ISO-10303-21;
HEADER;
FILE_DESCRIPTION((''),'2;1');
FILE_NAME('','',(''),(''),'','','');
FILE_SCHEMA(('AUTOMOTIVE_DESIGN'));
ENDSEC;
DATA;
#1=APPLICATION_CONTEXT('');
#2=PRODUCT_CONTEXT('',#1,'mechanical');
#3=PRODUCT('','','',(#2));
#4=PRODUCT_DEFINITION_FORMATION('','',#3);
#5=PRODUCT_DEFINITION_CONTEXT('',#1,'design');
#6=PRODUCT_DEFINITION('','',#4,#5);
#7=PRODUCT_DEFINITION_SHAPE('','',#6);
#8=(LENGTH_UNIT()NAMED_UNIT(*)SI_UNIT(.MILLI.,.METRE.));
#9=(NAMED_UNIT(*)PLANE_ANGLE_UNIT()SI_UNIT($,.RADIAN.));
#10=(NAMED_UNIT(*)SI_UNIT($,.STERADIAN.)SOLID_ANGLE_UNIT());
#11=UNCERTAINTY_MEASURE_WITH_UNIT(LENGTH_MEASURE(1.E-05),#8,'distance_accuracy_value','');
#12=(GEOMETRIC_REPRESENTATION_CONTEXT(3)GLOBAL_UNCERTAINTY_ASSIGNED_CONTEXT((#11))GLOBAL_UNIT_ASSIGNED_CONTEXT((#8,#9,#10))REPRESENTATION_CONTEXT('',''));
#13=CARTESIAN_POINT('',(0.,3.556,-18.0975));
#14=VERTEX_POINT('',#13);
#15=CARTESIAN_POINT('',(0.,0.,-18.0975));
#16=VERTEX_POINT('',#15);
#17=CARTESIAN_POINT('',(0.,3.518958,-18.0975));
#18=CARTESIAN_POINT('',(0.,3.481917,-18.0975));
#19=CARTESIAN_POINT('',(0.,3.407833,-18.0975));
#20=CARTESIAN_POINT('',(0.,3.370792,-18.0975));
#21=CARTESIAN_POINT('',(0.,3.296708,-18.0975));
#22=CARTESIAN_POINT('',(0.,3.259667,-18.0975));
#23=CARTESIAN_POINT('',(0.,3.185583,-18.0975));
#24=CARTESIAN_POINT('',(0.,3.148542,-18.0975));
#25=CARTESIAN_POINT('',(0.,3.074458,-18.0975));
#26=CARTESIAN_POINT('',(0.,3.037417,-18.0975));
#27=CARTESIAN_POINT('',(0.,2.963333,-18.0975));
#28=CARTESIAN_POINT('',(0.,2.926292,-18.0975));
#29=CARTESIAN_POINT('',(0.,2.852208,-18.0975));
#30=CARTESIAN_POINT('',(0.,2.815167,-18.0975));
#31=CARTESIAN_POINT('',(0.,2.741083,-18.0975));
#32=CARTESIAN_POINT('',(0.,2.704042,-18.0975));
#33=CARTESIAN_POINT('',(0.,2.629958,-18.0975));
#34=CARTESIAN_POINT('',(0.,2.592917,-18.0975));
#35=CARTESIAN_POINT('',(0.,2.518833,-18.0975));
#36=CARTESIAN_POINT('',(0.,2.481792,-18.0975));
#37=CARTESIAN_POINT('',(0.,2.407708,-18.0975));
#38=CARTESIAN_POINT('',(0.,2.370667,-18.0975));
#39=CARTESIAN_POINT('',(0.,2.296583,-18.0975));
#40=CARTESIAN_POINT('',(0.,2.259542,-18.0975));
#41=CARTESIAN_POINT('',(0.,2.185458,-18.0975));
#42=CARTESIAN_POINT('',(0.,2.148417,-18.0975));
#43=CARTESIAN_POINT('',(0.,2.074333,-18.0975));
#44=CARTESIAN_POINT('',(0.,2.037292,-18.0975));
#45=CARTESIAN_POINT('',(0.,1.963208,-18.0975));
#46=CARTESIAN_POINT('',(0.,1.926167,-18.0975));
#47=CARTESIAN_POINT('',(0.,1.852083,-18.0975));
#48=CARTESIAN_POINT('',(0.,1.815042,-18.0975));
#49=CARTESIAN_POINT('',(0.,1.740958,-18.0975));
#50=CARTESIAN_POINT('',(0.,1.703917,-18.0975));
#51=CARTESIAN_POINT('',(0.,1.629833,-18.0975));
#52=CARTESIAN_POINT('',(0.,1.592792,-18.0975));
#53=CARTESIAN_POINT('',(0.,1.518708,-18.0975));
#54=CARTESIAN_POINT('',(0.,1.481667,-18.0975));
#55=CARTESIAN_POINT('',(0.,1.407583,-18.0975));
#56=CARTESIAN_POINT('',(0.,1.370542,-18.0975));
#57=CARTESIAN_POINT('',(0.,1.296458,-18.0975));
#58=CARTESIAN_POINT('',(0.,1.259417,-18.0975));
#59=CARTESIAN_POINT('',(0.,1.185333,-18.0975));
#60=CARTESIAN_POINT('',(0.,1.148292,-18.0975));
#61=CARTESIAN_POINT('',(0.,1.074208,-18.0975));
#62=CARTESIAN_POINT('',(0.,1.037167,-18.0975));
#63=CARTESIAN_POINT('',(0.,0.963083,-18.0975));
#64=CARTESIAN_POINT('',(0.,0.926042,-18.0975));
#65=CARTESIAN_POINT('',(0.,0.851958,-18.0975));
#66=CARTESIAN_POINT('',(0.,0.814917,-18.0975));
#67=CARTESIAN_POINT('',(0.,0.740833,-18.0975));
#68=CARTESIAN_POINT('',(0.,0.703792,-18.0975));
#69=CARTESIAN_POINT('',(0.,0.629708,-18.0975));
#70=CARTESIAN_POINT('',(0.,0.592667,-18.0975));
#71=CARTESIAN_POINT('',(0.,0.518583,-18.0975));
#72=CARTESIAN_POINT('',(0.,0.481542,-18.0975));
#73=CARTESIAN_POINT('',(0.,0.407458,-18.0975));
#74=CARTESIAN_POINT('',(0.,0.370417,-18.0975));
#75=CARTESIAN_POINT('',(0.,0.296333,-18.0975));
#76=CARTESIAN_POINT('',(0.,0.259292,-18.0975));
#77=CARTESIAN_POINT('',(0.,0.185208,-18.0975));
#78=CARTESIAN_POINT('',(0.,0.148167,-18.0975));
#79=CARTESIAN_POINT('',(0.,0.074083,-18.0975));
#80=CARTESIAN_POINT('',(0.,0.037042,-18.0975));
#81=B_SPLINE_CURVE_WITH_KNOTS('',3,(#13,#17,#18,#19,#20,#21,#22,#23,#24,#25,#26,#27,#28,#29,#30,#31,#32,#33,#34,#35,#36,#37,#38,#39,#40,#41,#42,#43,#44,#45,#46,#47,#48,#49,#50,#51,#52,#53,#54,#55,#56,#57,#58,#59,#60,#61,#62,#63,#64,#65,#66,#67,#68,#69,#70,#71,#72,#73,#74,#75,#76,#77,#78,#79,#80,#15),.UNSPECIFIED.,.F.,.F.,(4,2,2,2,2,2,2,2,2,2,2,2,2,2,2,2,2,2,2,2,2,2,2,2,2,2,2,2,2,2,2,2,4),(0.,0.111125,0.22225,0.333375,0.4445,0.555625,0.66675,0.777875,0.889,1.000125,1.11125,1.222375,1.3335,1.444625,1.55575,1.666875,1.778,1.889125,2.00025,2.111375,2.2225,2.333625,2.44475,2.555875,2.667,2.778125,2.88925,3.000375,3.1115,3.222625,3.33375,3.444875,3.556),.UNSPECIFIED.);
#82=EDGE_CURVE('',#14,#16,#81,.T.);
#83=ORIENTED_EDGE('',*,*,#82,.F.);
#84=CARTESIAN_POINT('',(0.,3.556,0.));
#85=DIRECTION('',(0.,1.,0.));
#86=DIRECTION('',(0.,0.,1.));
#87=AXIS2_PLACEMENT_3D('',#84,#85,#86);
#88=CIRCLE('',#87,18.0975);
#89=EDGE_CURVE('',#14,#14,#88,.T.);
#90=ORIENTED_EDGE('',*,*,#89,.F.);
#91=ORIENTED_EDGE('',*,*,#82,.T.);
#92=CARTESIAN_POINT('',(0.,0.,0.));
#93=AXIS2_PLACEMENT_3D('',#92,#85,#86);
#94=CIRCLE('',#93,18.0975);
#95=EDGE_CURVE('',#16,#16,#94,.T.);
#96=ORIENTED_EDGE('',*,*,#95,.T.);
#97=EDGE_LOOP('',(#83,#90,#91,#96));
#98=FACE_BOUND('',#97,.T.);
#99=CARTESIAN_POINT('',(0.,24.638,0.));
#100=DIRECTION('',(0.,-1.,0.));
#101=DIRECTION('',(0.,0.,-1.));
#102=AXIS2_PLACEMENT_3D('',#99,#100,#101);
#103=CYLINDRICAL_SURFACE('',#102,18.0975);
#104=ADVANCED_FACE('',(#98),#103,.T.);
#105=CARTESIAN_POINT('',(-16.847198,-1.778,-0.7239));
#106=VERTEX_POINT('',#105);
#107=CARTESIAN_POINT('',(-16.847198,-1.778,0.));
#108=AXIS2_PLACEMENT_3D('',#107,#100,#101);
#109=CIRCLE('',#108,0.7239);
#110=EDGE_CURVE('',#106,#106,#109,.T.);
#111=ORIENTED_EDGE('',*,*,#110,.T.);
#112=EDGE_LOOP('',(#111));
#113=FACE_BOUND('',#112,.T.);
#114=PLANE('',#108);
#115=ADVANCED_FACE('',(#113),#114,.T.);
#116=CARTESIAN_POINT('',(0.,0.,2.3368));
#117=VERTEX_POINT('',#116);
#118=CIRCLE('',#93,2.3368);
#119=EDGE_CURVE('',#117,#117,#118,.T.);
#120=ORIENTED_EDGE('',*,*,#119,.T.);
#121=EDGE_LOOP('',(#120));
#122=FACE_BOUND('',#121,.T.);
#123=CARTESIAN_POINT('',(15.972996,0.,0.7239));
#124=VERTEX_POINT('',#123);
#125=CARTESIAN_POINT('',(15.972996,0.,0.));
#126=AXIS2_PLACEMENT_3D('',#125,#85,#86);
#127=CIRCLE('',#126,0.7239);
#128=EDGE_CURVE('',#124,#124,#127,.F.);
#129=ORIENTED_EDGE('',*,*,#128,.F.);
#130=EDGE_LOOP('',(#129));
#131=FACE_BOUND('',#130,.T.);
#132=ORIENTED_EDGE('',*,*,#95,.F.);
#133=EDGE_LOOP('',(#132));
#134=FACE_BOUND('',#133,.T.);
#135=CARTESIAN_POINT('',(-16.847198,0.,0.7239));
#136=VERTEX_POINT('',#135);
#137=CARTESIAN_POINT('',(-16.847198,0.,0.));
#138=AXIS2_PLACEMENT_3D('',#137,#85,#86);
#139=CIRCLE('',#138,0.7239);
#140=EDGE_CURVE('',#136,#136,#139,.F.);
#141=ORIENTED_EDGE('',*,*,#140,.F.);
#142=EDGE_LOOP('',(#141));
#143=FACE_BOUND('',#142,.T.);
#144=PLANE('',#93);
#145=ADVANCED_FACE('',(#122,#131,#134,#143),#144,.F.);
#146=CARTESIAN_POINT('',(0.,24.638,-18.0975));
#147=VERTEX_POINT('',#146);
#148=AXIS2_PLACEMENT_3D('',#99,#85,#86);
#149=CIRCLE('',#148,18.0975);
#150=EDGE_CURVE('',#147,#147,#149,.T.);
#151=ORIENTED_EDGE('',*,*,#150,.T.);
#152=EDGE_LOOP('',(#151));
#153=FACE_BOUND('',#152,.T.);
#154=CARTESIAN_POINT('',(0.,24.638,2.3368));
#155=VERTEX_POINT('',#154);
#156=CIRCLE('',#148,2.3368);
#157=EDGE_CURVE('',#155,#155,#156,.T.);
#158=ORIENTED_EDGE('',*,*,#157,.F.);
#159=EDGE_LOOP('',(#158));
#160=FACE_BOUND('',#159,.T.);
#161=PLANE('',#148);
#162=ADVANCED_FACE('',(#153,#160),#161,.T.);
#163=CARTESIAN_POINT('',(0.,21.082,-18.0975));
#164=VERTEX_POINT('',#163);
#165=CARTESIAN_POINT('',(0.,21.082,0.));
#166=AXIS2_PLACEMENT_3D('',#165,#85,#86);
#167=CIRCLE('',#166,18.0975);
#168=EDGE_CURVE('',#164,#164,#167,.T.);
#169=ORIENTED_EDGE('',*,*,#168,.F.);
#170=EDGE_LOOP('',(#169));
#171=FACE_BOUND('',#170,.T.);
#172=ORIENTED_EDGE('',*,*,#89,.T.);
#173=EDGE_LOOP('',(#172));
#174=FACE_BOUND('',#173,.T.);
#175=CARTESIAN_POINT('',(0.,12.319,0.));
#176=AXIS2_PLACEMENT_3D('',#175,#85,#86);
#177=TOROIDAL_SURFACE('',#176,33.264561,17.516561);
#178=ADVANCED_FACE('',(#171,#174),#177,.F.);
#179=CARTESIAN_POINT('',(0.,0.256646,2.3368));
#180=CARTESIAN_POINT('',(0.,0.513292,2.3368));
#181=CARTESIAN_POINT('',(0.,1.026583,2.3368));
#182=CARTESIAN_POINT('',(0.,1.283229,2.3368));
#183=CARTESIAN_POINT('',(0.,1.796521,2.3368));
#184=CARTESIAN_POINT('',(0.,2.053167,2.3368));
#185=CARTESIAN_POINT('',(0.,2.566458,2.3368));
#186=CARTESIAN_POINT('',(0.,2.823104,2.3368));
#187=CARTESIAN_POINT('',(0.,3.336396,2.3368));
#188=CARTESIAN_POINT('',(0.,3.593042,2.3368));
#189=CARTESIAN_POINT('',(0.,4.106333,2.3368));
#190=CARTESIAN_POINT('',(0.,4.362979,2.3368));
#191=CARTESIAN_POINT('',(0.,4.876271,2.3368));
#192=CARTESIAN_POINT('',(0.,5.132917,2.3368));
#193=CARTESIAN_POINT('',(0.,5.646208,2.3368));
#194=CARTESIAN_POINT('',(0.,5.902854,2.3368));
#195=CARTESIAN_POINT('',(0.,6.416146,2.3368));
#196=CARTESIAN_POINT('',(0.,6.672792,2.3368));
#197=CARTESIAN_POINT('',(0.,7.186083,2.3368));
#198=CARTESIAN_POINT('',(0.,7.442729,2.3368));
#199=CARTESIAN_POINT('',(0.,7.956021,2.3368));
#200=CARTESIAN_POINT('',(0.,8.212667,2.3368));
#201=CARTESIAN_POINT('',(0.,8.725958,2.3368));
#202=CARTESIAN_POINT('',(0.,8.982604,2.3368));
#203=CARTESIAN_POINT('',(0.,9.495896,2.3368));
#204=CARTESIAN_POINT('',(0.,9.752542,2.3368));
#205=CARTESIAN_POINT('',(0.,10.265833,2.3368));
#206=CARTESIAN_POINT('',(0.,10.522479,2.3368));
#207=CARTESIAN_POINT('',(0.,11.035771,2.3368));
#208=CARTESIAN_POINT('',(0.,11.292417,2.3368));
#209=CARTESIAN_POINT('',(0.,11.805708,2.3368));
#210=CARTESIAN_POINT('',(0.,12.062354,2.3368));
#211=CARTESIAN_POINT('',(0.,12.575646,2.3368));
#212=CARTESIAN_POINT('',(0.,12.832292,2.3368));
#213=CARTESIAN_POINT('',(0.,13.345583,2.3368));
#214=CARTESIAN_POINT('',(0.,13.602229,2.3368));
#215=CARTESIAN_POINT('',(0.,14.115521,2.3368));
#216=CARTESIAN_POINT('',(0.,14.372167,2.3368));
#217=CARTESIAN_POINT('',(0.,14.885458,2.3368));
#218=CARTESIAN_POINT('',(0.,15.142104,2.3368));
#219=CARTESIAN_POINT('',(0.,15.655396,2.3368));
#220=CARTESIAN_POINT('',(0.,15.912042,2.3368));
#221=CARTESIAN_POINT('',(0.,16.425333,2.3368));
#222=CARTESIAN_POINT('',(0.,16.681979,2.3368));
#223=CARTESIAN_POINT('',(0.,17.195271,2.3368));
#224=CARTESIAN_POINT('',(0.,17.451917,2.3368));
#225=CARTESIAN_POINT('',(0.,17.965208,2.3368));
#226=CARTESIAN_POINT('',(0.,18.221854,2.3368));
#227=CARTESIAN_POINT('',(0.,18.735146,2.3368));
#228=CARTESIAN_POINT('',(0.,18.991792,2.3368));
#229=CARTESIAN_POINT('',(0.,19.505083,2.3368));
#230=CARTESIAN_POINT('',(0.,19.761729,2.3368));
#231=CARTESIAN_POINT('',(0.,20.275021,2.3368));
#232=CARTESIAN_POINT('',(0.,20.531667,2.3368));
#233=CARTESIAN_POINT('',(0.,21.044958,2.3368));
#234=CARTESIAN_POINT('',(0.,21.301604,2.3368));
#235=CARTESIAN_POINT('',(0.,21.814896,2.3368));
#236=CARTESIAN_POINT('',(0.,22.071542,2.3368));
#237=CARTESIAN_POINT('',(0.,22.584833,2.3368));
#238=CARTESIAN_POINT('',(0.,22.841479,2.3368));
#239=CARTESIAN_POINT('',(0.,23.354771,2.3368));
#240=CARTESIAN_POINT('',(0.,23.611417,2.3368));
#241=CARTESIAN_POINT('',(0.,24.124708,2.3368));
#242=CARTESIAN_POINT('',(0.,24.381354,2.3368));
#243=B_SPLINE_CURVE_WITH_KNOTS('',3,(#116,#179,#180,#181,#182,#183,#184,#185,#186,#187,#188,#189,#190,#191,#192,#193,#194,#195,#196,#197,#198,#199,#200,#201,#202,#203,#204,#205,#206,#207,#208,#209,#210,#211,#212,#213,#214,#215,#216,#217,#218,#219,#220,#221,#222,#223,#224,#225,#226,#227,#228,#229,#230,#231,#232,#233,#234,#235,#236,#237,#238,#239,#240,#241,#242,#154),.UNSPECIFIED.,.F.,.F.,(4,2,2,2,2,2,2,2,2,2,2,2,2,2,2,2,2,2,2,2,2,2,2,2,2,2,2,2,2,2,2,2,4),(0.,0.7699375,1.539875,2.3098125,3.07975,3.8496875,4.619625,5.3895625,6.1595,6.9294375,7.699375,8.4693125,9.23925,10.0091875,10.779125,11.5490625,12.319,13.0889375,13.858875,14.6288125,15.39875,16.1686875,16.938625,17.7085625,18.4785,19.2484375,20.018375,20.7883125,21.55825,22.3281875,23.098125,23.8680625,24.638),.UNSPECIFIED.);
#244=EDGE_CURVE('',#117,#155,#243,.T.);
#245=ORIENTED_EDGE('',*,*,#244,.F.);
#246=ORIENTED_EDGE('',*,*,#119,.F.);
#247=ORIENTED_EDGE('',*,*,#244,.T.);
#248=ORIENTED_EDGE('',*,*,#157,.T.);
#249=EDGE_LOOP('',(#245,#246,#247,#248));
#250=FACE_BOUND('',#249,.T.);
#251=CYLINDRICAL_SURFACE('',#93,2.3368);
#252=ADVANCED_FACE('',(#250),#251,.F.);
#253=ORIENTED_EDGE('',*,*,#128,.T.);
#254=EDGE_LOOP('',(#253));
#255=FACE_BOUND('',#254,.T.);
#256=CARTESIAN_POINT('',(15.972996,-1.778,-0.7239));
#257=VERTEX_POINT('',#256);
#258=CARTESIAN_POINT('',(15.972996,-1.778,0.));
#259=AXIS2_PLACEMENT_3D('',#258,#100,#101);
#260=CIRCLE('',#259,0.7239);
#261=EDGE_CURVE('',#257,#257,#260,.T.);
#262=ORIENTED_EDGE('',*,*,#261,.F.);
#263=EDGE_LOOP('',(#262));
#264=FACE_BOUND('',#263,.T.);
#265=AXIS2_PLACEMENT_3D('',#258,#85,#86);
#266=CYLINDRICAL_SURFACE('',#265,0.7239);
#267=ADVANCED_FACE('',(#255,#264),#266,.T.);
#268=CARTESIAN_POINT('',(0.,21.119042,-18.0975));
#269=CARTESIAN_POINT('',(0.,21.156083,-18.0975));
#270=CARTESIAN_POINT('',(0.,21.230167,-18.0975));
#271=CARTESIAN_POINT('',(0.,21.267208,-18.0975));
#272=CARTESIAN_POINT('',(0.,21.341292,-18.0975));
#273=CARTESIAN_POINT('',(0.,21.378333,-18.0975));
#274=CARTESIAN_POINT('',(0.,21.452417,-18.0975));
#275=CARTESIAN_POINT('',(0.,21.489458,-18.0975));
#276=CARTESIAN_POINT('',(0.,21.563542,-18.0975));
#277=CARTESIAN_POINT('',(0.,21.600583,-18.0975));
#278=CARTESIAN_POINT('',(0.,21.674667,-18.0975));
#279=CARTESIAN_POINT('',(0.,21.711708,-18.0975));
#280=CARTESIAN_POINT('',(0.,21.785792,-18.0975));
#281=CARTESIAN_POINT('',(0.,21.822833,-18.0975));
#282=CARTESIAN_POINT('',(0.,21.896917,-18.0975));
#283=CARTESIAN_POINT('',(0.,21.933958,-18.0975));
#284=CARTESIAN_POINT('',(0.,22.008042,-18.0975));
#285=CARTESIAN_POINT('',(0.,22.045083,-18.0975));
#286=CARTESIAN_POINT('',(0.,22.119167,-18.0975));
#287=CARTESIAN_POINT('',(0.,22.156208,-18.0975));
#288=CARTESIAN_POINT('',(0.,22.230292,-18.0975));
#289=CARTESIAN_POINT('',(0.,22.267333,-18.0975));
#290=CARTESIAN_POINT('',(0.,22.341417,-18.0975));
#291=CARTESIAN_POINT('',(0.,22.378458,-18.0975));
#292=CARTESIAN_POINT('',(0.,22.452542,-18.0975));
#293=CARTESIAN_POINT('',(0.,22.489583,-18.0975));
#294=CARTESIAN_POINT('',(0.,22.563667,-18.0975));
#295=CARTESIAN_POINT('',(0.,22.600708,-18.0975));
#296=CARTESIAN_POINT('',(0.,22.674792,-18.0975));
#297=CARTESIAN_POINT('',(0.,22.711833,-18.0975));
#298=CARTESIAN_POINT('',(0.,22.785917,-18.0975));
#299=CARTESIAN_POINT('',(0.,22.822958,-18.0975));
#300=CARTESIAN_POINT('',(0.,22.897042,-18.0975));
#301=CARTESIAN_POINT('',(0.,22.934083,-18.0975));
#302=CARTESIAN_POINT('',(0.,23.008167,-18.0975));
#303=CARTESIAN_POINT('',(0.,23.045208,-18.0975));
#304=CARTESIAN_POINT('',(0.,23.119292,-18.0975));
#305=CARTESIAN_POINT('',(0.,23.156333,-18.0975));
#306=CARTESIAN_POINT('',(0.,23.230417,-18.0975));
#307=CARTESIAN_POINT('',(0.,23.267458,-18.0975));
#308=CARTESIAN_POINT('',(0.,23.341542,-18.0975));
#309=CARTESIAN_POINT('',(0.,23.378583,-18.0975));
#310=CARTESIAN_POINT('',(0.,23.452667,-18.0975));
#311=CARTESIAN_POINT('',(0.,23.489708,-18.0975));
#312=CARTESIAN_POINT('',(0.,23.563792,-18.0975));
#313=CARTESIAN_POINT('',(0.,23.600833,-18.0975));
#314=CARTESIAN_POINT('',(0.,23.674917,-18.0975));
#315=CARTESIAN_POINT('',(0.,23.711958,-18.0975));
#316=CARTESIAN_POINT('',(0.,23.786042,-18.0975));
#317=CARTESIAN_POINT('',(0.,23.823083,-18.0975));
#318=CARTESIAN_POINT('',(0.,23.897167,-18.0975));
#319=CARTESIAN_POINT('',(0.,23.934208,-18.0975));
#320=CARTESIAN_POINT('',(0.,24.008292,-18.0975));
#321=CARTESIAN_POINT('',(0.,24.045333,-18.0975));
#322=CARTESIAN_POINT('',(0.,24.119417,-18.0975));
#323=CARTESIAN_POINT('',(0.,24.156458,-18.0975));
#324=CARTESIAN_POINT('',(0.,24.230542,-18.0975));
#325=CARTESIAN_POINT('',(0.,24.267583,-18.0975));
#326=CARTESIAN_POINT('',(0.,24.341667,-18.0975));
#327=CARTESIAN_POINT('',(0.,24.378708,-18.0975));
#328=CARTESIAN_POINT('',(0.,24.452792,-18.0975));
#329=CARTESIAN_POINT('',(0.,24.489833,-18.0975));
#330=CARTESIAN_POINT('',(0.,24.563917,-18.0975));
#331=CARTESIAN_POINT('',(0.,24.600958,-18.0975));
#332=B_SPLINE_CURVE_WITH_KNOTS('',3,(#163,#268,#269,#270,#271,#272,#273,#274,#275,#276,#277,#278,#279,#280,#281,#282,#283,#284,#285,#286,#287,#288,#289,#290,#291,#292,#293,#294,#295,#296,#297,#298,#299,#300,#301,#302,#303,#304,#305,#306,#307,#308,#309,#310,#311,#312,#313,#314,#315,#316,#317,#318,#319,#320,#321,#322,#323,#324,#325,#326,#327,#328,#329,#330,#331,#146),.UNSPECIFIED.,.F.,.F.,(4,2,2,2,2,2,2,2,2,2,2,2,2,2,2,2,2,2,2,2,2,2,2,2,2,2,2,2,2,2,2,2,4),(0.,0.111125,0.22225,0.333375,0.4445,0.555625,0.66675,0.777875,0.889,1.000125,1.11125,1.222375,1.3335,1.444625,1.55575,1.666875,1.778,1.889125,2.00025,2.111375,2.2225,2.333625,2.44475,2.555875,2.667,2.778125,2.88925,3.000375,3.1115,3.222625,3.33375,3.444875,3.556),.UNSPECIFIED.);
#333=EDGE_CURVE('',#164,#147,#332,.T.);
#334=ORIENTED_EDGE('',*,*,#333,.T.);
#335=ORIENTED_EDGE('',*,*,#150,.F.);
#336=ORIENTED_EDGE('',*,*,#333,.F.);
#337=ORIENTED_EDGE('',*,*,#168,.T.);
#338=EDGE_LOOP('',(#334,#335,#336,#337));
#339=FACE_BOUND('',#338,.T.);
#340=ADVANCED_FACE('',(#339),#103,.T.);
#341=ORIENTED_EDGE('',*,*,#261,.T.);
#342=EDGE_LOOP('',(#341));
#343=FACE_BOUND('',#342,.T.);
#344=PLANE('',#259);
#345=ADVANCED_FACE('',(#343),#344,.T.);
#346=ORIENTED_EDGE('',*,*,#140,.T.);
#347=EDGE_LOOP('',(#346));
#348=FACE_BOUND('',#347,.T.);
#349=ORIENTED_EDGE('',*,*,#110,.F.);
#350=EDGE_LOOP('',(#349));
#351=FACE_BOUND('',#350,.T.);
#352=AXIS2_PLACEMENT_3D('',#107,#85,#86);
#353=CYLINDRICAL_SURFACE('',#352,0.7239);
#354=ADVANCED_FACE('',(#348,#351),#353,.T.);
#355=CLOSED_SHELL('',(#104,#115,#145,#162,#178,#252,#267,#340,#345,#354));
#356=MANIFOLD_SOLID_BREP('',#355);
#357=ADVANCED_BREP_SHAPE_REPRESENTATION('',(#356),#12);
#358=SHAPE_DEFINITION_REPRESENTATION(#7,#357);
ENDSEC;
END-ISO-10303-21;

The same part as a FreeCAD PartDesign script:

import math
import FreeCAD as App
import Part
import Sketcher
from FreeCAD import Vector
Q = App.Units.Quantity

doc = App.newDocument("Part")
body = doc.addObject("PartDesign::Body", "Body")

# Sketch on XZ plane
sketch1 = body.newObject("Sketcher::SketchObject", "Sketch")
sketch1.AttachmentSupport = (doc.getObject("XZ_Plane"), [""])
sketch1.MapMode = "FlatFace"
sketch1.addGeometry(Part.Circle(Vector(0, 0, 0), Vector(0, 0, 1), 18.0975), False)
sketch1.addConstraint([
    Sketcher.Constraint("Coincident", 0, 3, -1, 1),
    Sketcher.Constraint("Diameter", 0, Q("1.425 in")),
])
pad1 = body.newObject("PartDesign::Pad", "Pad")
pad1.Profile = sketch1
pad1.Length = Q("0.97 in")
pad1.Reversed = True

# Sketch on XZ plane
sketch2 = body.newObject("Sketcher::SketchObject", "Sketch001")
sketch2.AttachmentSupport = (doc.getObject("XZ_Plane"), [""])
sketch2.MapMode = "FlatFace"
sketch2.AttachmentOffset = App.Placement(Vector(0, 0, -0.97 * 25.4), App.Rotation())
sketch2.addGeometry(Part.Circle(Vector(0, 0, 0), Vector(0, 0, 1), 2.3368), False)
sketch2.addConstraint([
    Sketcher.Constraint("Coincident", 0, 3, -1, 1),
    Sketcher.Constraint("Diameter", 0, Q("0.184 in")),
])
pocket1 = body.newObject("PartDesign::Pocket", "Pocket")
pocket1.Profile = sketch2
pocket1.Type = "ThroughAll"
pocket1.Reversed = True

# Sketch on XZ plane
sketch3 = body.newObject("Sketcher::SketchObject", "Sketch002")
sketch3.AttachmentSupport = (doc.getObject("XZ_Plane"), [""])
sketch3.MapMode = "FlatFace"
sketch3.addGeometry([
    Part.Circle(Vector(15.972996, 0, 0), Vector(0, 0, 1), 0.7239),
    Part.Circle(Vector(-16.847198, 0, 0), Vector(0, 0, 1), 0.7239),
], False)
sketch3.addConstraint([
    Sketcher.Constraint("Equal", 0, 1),
    Sketcher.Constraint("PointOnObject", 0, 3, -1),
    Sketcher.Constraint("PointOnObject", 1, 3, -1),
    Sketcher.Constraint("Diameter", 0, Q("0.057 in")),
    Sketcher.Constraint("DistanceX", -1, 1, 0, 3, 15.972996),
    Sketcher.Constraint("DistanceX", 1, 3, -1, 1, 16.847198),
])
pad2 = body.newObject("PartDesign::Pad", "Pad001")
pad2.Profile = sketch3
pad2.Length = Q("0.07 in")

# Sketch on XY plane
sketch4 = body.newObject("Sketcher::SketchObject", "Sketch003")
sketch4.AttachmentSupport = (doc.getObject("XY_Plane"), [""])
sketch4.MapMode = "FlatFace"
sketch4.addGeometry([
    Part.LineSegment(Vector(-18.0975, 21.082, 0), Vector(-18.0975, 3.556, 0)),
    Part.ArcOfCircle(Part.Circle(Vector(-33.264561, 12.319, 0), Vector(0, 0, 1), 17.516561), math.radians(-30.017827), math.radians(30.017827)),
], False)
sketch4.addConstraint([
    Sketcher.Constraint("Coincident", 0, 1, 1, 2),
    Sketcher.Constraint("Coincident", 1, 1, 0, 2),
    Sketcher.Constraint("Vertical", 0),
    Sketcher.Constraint("DistanceY", 0, 2, 0, 1, Q("0.69 in")),
    Sketcher.Constraint("DistanceY", -1, 1, 0, 1, Q("0.83 in")),
    Sketcher.Constraint("Radius", 1, 17.516561),
    Sketcher.Constraint("DistanceX", 0, 1, -1, 1, Q("0.7125 in")),
])
groove = body.newObject("PartDesign::Groove", "Groove")
groove.Profile = sketch4
groove.ReferenceAxis = (sketch4, ["V_Axis"])
groove.Angle = 360

doc.recompute()
